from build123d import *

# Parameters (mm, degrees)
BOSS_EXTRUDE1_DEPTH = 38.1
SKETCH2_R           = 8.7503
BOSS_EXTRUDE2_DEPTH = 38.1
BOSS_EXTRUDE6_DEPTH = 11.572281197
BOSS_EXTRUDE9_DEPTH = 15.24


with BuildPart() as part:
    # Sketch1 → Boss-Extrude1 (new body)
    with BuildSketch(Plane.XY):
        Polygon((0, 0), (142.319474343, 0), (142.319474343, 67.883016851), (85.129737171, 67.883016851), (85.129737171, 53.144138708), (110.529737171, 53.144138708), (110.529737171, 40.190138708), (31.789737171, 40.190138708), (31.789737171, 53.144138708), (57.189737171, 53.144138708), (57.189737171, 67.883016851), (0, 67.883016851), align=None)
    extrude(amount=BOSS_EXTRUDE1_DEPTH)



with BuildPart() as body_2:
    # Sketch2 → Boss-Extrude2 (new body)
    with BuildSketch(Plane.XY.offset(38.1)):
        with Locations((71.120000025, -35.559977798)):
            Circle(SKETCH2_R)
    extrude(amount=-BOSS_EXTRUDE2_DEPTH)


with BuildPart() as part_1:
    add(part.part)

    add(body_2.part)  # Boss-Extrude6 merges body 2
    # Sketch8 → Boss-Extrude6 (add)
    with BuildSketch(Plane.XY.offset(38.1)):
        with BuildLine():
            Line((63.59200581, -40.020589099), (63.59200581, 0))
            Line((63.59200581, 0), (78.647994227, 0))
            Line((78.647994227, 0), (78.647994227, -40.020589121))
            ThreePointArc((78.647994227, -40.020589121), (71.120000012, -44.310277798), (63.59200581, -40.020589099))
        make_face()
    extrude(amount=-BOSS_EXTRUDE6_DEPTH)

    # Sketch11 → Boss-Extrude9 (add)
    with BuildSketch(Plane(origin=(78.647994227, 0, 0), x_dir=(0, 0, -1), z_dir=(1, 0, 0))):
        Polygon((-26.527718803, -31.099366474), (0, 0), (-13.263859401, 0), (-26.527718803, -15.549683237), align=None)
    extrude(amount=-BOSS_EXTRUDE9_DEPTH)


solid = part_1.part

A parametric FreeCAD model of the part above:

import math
import FreeCAD as App
import Part
import Sketcher
Q = App.Units.Quantity

doc = App.newDocument("Part")
body = doc.addObject("PartDesign::Body", "Body")

sketch1 = body.newObject("Sketcher::SketchObject", "Sketch")
sketch1.AttachmentSupport = (doc.getObject("XY_Plane"), [""])
sketch1.MapMode = "FlatFace"
sketch1.addGeometry([
    Part.LineSegment(App.Vector(0, 0, 0), App.Vector(142.319474, 0, 0)),
    Part.LineSegment(App.Vector(142.319474, 0, 0), App.Vector(142.319474, 67.883017, 0)),
    Part.LineSegment(App.Vector(142.319474, 67.883017, 0), App.Vector(85.129737, 67.883017, 0)),
    Part.LineSegment(App.Vector(85.129737, 67.883017, 0), App.Vector(85.129737, 53.144139, 0)),
    Part.LineSegment(App.Vector(85.129737, 53.144139, 0), App.Vector(110.529737, 53.144139, 0)),
    Part.LineSegment(App.Vector(110.529737, 53.144139, 0), App.Vector(110.529737, 40.190139, 0)),
    Part.LineSegment(App.Vector(110.529737, 40.190139, 0), App.Vector(31.789737, 40.190139, 0)),
    Part.LineSegment(App.Vector(31.789737, 40.190139, 0), App.Vector(31.789737, 53.144139, 0)),
    Part.LineSegment(App.Vector(31.789737, 53.144139, 0), App.Vector(57.189737, 53.144139, 0)),
    Part.LineSegment(App.Vector(57.189737, 53.144139, 0), App.Vector(57.189737, 67.883017, 0)),
    Part.LineSegment(App.Vector(57.189737, 67.883017, 0), App.Vector(0, 67.883017, 0)),
    Part.LineSegment(App.Vector(0, 67.883017, 0), App.Vector(0, 0, 0)),
], False)
sketch1.addConstraint([
    Sketcher.Constraint("Coincident", 0, 2, 1, 1),
    Sketcher.Constraint("Coincident", 1, 2, 2, 1),
    Sketcher.Constraint("Coincident", 2, 2, 3, 1),
    Sketcher.Constraint("Coincident", 3, 2, 4, 1),
    Sketcher.Constraint("Coincident", 4, 2, 5, 1),
    Sketcher.Constraint("Coincident", 5, 2, 6, 1),
    Sketcher.Constraint("Coincident", 6, 2, 7, 1),
    Sketcher.Constraint("Coincident", 7, 2, 8, 1),
    Sketcher.Constraint("Coincident", 8, 2, 9, 1),
    Sketcher.Constraint("Coincident", 9, 2, 10, 1),
    Sketcher.Constraint("Coincident", 10, 2, 11, 1),
    Sketcher.Constraint("Coincident", 11, 2, 0, 1),
    Sketcher.Constraint("Horizontal", 0),
    Sketcher.Constraint("Vertical", 1),
    Sketcher.Constraint("Horizontal", 2),
    Sketcher.Constraint("Vertical", 3),
    Sketcher.Constraint("Horizontal", 4),
    Sketcher.Constraint("Vertical", 5),
    Sketcher.Constraint("Horizontal", 6),
    Sketcher.Constraint("Vertical", 7),
    Sketcher.Constraint("Horizontal", 8),
    Sketcher.Constraint("Vertical", 9),
    Sketcher.Constraint("Horizontal", 10),
    Sketcher.Constraint("Vertical", 11),
    Sketcher.Constraint("Coincident", 11, 2, -1, 1),
    Sketcher.Constraint("Horizontal", 4, 2, 7, 2),
    Sketcher.Constraint("Horizontal", 2, 2, 9, 2),
    Sketcher.Constraint("Equal", 4, 8),
    Sketcher.Constraint("Equal", 2, 10),
    Sketcher.Constraint("DistanceX", 4, 1, 4, 2, Q("1 in")),
    Sketcher.Constraint("DistanceX", 6, 2, 6, 1, Q("3.1 in")),
    Sketcher.Constraint("DistanceY", 5, 2, 5, 1, Q("0.51 in")),
    Sketcher.Constraint("DistanceY", 3, 2, 3, 1, 14.738878),
    Sketcher.Constraint("DistanceX", 0, 1, 0, 2, 142.319474),
    Sketcher.Constraint("DistanceY", 1, 1, 1, 2, 67.883017),
])
pad1 = body.newObject("PartDesign::Pad", "Pad")
pad1.Profile = sketch1
pad1.Length = Q("1.5 in")
body2 = doc.addObject("PartDesign::Body", "Body001")

sketch2 = body2.newObject("Sketcher::SketchObject", "Sketch001")
sketch2.AttachmentSupport = (doc.getObject("XY_Plane001"), [""])
sketch2.MapMode = "FlatFace"
sketch2.AttachmentOffset = App.Placement(App.Vector(0, 0, 1.5 * 25.4), App.Rotation())
sketch2.addGeometry(Part.Circle(App.Vector(71.12, -35.559978, 0), App.Vector(0, 0, 1), 8.7503), False)
sketch2.addConstraint([
    Sketcher.Constraint("Diameter", 0, Q("0.689 in")),
    Sketcher.Constraint("DistanceX", -1, 1, 0, 3, Q("2.8 in")),
    Sketcher.Constraint("DistanceY", 0, 3, -1, 1, 35.559978),
])
pad2 = body2.newObject("PartDesign::Pad", "Pad001")
pad2.Profile = sketch2
pad2.Length = Q("1.5 in")
pad2.Reversed = True
body.AllowCompound = True
doc.recompute()

boolean = body.newObject("PartDesign::Boolean", "Boolean")
boolean.Type = "Fuse"
boolean.addObjects([body2])

sketch3 = body.newObject("Sketcher::SketchObject", "Sketch002")
sketch3.AttachmentSupport = (doc.getObject("XY_Plane"), [""])
sketch3.MapMode = "FlatFace"
sketch3.AttachmentOffset = App.Placement(App.Vector(0, 0, 1.5 * 25.4), App.Rotation())
sketch3.addGeometry([
    Part.LineSegment(App.Vector(63.592006, 0, 0), App.Vector(63.592006, -40.020589, 0)),
    Part.ArcOfCircle(Part.Circle(App.Vector(71.12, -35.559978, 0), App.Vector(0, 0, 1), 8.7503), math.radians(-149.351711), math.radians(-30.648289)),
    Part.LineSegment(App.Vector(78.647994, -40.020589, 0), App.Vector(78.647994, 0, 0)),
    Part.LineSegment(App.Vector(78.647994, 0, 0), App.Vector(63.592006, 0, 0)),
], False)
sketch3.addConstraint([
    Sketcher.Constraint("Coincident", 0, 2, 1, 1),
    Sketcher.Constraint("Coincident", 1, 2, 2, 1),
    Sketcher.Constraint("Coincident", 2, 2, 3, 1),
    Sketcher.Constraint("Coincident", 3, 2, 0, 1),
    Sketcher.Constraint("Vertical", 0),
    Sketcher.Constraint("Vertical", 2),
    Sketcher.Constraint("Horizontal", 3),
    Sketcher.Constraint("PointOnObject", 2, 2, -1),
    Sketcher.Constraint("Horizontal", 0, 2, 1, 2),
    Sketcher.Constraint("DistanceX", -1, 1, 1, 3, Q("2.8 in")),
    Sketcher.Constraint("Radius", 1, Q("0.3445 in")),
    Sketcher.Constraint("DistanceX", 3, 2, 3, 1, 15.055988),
    Sketcher.Constraint("DistanceY", 0, 2, 0, 1, 40.020589),
])
pad3 = body.newObject("PartDesign::Pad", "Pad002")
pad3.Profile = sketch3
pad3.Length = 11.572281
pad3.Reversed = True

sketch4 = body.newObject("Sketcher::SketchObject", "Sketch003")
sketch4.AttachmentSupport = (doc.getObject("YZ_Plane"), [""])
sketch4.MapMode = "FlatFace"
sketch4.AttachmentOffset = App.Placement(App.Vector(0, 0, 78.647994), App.Rotation())
sketch4.addGeometry([
    Part.LineSegment(App.Vector(-31.099366, 26.527719, 0), App.Vector(0, 0, 0)),
    Part.LineSegment(App.Vector(0, 0, 0), App.Vector(0, 13.263859, 0)),
    Part.LineSegment(App.Vector(0, 13.263859, 0), App.Vector(-15.549683, 26.527719, 0)),
    Part.LineSegment(App.Vector(-15.549683, 26.527719, 0), App.Vector(-31.099366, 26.527719, 0)),
], False)
sketch4.addConstraint([
    Sketcher.Constraint("Coincident", 0, 2, 1, 1),
    Sketcher.Constraint("Coincident", 1, 2, 2, 1),
    Sketcher.Constraint("Coincident", 2, 2, 3, 1),
    Sketcher.Constraint("Coincident", 3, 2, 0, 1),
    Sketcher.Constraint("Vertical", 1),
    Sketcher.Constraint("Horizontal", 3),
    Sketcher.Constraint("Coincident", 0, 2, -1, 1),
    Sketcher.Constraint("Parallel", 0, 2),
    Sketcher.Constraint("DistanceY", 1, 1, 1, 2, 13.263859),
    Sketcher.Constraint("DistanceX", 3, 2, 3, 1, 15.549683),
    Sketcher.Constraint("DistanceY", -1, 1, 2, 2, 26.527719),
])
pad4 = body.newObject("PartDesign::Pad", "Pad003")
pad4.Profile = sketch4
pad4.Length = Q("0.6 in")
pad4.Reversed = True

doc.recompute()
